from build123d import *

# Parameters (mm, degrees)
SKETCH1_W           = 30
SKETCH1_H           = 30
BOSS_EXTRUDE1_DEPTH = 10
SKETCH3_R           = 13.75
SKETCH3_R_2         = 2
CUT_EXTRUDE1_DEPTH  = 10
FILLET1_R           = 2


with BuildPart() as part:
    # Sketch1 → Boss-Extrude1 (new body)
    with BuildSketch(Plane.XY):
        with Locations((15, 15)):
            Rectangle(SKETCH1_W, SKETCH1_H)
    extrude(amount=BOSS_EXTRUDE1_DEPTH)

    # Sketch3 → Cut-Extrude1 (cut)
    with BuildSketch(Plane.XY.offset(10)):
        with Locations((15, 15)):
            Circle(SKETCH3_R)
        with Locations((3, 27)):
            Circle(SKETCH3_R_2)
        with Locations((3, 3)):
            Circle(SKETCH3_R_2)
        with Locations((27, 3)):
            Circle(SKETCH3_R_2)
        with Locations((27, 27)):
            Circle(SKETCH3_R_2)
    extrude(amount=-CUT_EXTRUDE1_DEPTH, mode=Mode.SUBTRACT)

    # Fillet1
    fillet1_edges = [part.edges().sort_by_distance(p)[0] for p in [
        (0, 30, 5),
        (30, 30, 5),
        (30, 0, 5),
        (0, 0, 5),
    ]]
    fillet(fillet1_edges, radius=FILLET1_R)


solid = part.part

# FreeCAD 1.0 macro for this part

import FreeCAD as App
import Part
import Sketcher

V = App.Vector
Q = App.Units.Quantity


def edges_at(feature, points):
    """Names of the edges that pass closest to the given points."""
    edges = feature.Shape.Edges
    near = lambda p: min(range(len(edges)), key=lambda i: edges[i].distToShape(Part.Vertex(*p))[0])
    return sorted({f"Edge{near(p) + 1}" for p in points})


def add_polygon(sketch, points):
    """Adds a closed chain of lines whose ends are joined by coincident constraints."""
    first, n = sketch.GeometryCount, len(points)
    for a, b in zip(points, points[1:] + points[:1]):
        sketch.addGeometry(Part.LineSegment(App.Vector(*a, 0), App.Vector(*b, 0)), False)
    for i in range(n):
        sketch.addConstraint(Sketcher.Constraint("Coincident", first + i, 2, first + (i + 1) % n, 1))

doc = App.newDocument("Part")
body = doc.addObject("PartDesign::Body", "Body")

# Sketch on XY plane
sketch1 = body.newObject("Sketcher::SketchObject", "Sketch")
sketch1.AttachmentSupport = (doc.getObject("XY_Plane"), [""])
sketch1.MapMode = "FlatFace"
add_polygon(sketch1, [(0, 30), (0, 0), (30, 0), (30, 30)])  # lines 0-3
sketch1.addConstraint([
    Sketcher.Constraint("Vertical", 0),
    Sketcher.Constraint("Horizontal", 1),
    Sketcher.Constraint("Vertical", 2),
    Sketcher.Constraint("Horizontal", 3),
    Sketcher.Constraint("Coincident", 0, 2, -1, 1),
    Sketcher.Constraint("Equal", 3, 0),
    Sketcher.Constraint("DistanceX", 1, 1, 1, 2, Q("30 mm")),
])
pad1 = body.newObject("PartDesign::Pad", "Pad")
pad1.Profile = sketch1
pad1.Length = 10

# Sketch on XY plane
sketch2 = body.newObject("Sketcher::SketchObject", "Sketch001")
sketch2.AttachmentSupport = (doc.getObject("XY_Plane"), [""])
sketch2.MapMode = "FlatFace"
sketch2.AttachmentOffset = App.Placement(V(0, 0, 10), App.Rotation())
sketch2.addGeometry([
    Part.Circle(V(15, 15, 0), V(0, 0, 1), 13.8),  # 0
    Part.Circle(V(3, 27, 0), V(0, 0, 1), 2),  # 1
    Part.Circle(V(3, 3, 0), V(0, 0, 1), 2),  # 2
    Part.Circle(V(27, 3, 0), V(0, 0, 1), 2),  # 3
    Part.Circle(V(27, 27, 0), V(0, 0, 1), 2),  # 4
], False)
sketch2.addConstraint([
    Sketcher.Constraint("Equal", 1, 2),
    Sketcher.Constraint("Equal", 2, 3),
    Sketcher.Constraint("Equal", 3, 4),
    Sketcher.Constraint("Horizontal", 2, 3, 3, 3),
    Sketcher.Constraint("Horizontal", 1, 3, 4, 3),
    Sketcher.Constraint("Vertical", 1, 3, 2, 3),
    Sketcher.Constraint("Vertical", 3, 3, 4, 3),
    Sketcher.Constraint("Diameter", 1, Q("4 mm")),
    Sketcher.Constraint("Diameter", 0, Q("27.5 mm")),
    Sketcher.Constraint("DistanceX", -1, 1, 0, 3, Q("15 mm")),
    Sketcher.Constraint("DistanceY", -1, 1, 0, 3, Q("15 mm")),
    Sketcher.Constraint("DistanceX", -1, 1, 1, 3, Q("3 mm")),
    Sketcher.Constraint("DistanceY", -1, 1, 1, 3, Q("27 mm")),
    Sketcher.Constraint("DistanceY", -1, 1, 2, 3, Q("3 mm")),
    Sketcher.Constraint("DistanceX", -1, 1, 3, 3, Q("27 mm")),
])
pocket1 = body.newObject("PartDesign::Pocket", "Pocket")
pocket1.Profile = sketch2
pocket1.Length = 10
doc.recompute()

fillet = body.newObject("PartDesign::Fillet", "Fillet")
fillet.Base = (pocket1, edges_at(pocket1, [
    (0, 30, 5),
    (30, 30, 5),
    (30, 0, 5),
    (0, 0, 5),
]))
fillet.Radius = 2

doc.recompute()
